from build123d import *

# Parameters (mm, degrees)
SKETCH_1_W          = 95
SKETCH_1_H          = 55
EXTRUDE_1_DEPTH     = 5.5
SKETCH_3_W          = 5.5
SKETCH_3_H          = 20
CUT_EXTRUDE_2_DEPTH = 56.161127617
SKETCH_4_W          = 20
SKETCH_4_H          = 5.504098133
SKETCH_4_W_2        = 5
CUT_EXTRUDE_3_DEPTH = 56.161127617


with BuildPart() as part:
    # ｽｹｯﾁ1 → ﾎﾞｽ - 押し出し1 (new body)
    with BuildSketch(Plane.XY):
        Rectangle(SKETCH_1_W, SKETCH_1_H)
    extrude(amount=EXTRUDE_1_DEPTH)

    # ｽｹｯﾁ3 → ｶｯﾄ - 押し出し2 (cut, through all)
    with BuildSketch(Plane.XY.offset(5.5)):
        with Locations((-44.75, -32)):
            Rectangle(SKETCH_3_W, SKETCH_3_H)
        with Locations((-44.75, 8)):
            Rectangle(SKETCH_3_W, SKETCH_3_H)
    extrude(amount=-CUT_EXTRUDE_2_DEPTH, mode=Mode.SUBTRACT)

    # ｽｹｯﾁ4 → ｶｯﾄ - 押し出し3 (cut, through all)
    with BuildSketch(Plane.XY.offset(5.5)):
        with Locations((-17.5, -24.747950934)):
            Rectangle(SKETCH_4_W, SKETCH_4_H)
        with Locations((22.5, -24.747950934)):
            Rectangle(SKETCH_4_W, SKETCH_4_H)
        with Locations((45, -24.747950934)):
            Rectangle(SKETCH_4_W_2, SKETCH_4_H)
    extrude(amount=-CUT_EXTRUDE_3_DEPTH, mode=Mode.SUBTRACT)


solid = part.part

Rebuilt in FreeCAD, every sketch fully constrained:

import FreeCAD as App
import Part
import Sketcher
from FreeCAD import Vector


def add_polygon(sketch, points):
    """Adds a closed chain of lines whose ends are joined by coincident constraints."""
    first, n = sketch.GeometryCount, len(points)
    for a, b in zip(points, points[1:] + points[:1]):
        sketch.addGeometry(Part.LineSegment(App.Vector(*a, 0), App.Vector(*b, 0)), False)
    for i in range(n):
        sketch.addConstraint(Sketcher.Constraint("Coincident", first + i, 2, first + (i + 1) % n, 1))

doc = App.newDocument("Part")
body = doc.addObject("PartDesign::Body", "Body")

# Sketch on XY plane
sketch1 = body.newObject("Sketcher::SketchObject", "Sketch")
sketch1.AttachmentSupport = (doc.getObject("XY_Plane"), [""])
sketch1.MapMode = "FlatFace"
add_polygon(sketch1, [(-48, 28), (-48, -28), (48, -28), (48, 28)])  # lines 0-3
sketch1.addConstraint([
    Sketcher.Constraint("Vertical", 0),
    Sketcher.Constraint("Horizontal", 1),
    Sketcher.Constraint("Vertical", 2),
    Sketcher.Constraint("Horizontal", 3),
    Sketcher.Constraint("Symmetric", 0, 2, 2, 2, -1, 1),
    Sketcher.Constraint("DistanceX", 1, 1, 1, 2, 95.0),
    Sketcher.Constraint("DistanceY", 0, 2, 0, 1, 55.0),
])
pad1 = body.newObject("PartDesign::Pad", "Pad")
pad1.Profile = sketch1
pad1.Length = 5.5

# Sketch on XY plane
sketch2 = body.newObject("Sketcher::SketchObject", "Sketch001")
sketch2.AttachmentSupport = (doc.getObject("XY_Plane"), [""])
sketch2.MapMode = "FlatFace"
sketch2.AttachmentOffset = App.Placement(Vector(0, 0, 5.5), App.Rotation())
add_polygon(sketch2, [(-48, -22), (-48, -42), (-42, -42), (-42, -22)])  # lines 0-3
add_polygon(sketch2, [(-48, 18), (-48, -2), (-42, -2), (-42, 18)])  # lines 4-7
sketch2.addConstraint([
    Sketcher.Constraint("Vertical", 0),
    Sketcher.Constraint("Horizontal", 1),
    Sketcher.Constraint("Vertical", 2),
    Sketcher.Constraint("Horizontal", 3),
    Sketcher.Constraint("Vertical", 4),
    Sketcher.Constraint("Horizontal", 5),
    Sketcher.Constraint("Vertical", 6),
    Sketcher.Constraint("Horizontal", 7),
    Sketcher.Constraint("Vertical", 3, 2, 4, 2),
    Sketcher.Constraint("Vertical", 2, 2, 5, 2),
    Sketcher.Constraint("Equal", 2, 4),
    Sketcher.Constraint("DistanceY", 0, 2, 0, 1, 20.0),
    Sketcher.Constraint("DistanceX", 1, 1, 1, 2, 5.5),
    Sketcher.Constraint("DistanceY", 0, 2, -1, 1, 42.0),
    Sketcher.Constraint("DistanceX", 1, 2, -1, 1, 42.0),
    Sketcher.Constraint("DistanceY", 4, 2, -1, 1, 2.0),
])
pocket1 = body.newObject("PartDesign::Pocket", "Pocket")
pocket1.Profile = sketch2
pocket1.Type = "ThroughAll"

# Sketch on XY plane
sketch3 = body.newObject("Sketcher::SketchObject", "Sketch002")
sketch3.AttachmentSupport = (doc.getObject("XY_Plane"), [""])
sketch3.MapMode = "FlatFace"
sketch3.AttachmentOffset = App.Placement(Vector(0, 0, 5.5), App.Rotation())
add_polygon(sketch3, [(-28, -22), (-28, -28), (-8, -28), (-8, -22)])  # lines 0-3
add_polygon(sketch3, [(12, -22), (12, -28), (32, -28), (32, -22)])  # lines 4-7
add_polygon(sketch3, [(42, -22), (42, -28), (48, -28), (48, -22)])  # lines 8-11
sketch3.addConstraint([
    Sketcher.Constraint("Vertical", 0),
    Sketcher.Constraint("Horizontal", 1),
    Sketcher.Constraint("Vertical", 2),
    Sketcher.Constraint("Horizontal", 3),
    Sketcher.Constraint("Vertical", 4),
    Sketcher.Constraint("Horizontal", 5),
    Sketcher.Constraint("Vertical", 6),
    Sketcher.Constraint("Horizontal", 7),
    Sketcher.Constraint("Vertical", 8),
    Sketcher.Constraint("Horizontal", 9),
    Sketcher.Constraint("Vertical", 10),
    Sketcher.Constraint("Horizontal", 11),
    Sketcher.Constraint("Horizontal", 1, 2, 4, 2),
    Sketcher.Constraint("Horizontal", 3, 2, 6, 2),
    Sketcher.Constraint("Horizontal", 5, 2, 8, 2),
    Sketcher.Constraint("Horizontal", 7, 2, 10, 2),
    Sketcher.Constraint("Equal", 3, 5),
    Sketcher.Constraint("DistanceX", 1, 1, 1, 2, 20.0),
    Sketcher.Constraint("DistanceX", 9, 1, 9, 2, 5.0),
    Sketcher.Constraint("DistanceX", 1, 2, 4, 2, 20.0),
    Sketcher.Constraint("DistanceX", 5, 2, 8, 2, 10.0),
    Sketcher.Constraint("DistanceX", 0, 2, -1, 1, 27.5),
    Sketcher.Constraint("DistanceY", 0, 2, -1, 1, 27.5),
    Sketcher.Constraint("DistanceY", 0, 2, 0, 1, 5.504098),
])
pocket2 = body.newObject("PartDesign::Pocket", "Pocket001")
pocket2.Profile = sketch3
pocket2.Type = "ThroughAll"

doc.recompute()
